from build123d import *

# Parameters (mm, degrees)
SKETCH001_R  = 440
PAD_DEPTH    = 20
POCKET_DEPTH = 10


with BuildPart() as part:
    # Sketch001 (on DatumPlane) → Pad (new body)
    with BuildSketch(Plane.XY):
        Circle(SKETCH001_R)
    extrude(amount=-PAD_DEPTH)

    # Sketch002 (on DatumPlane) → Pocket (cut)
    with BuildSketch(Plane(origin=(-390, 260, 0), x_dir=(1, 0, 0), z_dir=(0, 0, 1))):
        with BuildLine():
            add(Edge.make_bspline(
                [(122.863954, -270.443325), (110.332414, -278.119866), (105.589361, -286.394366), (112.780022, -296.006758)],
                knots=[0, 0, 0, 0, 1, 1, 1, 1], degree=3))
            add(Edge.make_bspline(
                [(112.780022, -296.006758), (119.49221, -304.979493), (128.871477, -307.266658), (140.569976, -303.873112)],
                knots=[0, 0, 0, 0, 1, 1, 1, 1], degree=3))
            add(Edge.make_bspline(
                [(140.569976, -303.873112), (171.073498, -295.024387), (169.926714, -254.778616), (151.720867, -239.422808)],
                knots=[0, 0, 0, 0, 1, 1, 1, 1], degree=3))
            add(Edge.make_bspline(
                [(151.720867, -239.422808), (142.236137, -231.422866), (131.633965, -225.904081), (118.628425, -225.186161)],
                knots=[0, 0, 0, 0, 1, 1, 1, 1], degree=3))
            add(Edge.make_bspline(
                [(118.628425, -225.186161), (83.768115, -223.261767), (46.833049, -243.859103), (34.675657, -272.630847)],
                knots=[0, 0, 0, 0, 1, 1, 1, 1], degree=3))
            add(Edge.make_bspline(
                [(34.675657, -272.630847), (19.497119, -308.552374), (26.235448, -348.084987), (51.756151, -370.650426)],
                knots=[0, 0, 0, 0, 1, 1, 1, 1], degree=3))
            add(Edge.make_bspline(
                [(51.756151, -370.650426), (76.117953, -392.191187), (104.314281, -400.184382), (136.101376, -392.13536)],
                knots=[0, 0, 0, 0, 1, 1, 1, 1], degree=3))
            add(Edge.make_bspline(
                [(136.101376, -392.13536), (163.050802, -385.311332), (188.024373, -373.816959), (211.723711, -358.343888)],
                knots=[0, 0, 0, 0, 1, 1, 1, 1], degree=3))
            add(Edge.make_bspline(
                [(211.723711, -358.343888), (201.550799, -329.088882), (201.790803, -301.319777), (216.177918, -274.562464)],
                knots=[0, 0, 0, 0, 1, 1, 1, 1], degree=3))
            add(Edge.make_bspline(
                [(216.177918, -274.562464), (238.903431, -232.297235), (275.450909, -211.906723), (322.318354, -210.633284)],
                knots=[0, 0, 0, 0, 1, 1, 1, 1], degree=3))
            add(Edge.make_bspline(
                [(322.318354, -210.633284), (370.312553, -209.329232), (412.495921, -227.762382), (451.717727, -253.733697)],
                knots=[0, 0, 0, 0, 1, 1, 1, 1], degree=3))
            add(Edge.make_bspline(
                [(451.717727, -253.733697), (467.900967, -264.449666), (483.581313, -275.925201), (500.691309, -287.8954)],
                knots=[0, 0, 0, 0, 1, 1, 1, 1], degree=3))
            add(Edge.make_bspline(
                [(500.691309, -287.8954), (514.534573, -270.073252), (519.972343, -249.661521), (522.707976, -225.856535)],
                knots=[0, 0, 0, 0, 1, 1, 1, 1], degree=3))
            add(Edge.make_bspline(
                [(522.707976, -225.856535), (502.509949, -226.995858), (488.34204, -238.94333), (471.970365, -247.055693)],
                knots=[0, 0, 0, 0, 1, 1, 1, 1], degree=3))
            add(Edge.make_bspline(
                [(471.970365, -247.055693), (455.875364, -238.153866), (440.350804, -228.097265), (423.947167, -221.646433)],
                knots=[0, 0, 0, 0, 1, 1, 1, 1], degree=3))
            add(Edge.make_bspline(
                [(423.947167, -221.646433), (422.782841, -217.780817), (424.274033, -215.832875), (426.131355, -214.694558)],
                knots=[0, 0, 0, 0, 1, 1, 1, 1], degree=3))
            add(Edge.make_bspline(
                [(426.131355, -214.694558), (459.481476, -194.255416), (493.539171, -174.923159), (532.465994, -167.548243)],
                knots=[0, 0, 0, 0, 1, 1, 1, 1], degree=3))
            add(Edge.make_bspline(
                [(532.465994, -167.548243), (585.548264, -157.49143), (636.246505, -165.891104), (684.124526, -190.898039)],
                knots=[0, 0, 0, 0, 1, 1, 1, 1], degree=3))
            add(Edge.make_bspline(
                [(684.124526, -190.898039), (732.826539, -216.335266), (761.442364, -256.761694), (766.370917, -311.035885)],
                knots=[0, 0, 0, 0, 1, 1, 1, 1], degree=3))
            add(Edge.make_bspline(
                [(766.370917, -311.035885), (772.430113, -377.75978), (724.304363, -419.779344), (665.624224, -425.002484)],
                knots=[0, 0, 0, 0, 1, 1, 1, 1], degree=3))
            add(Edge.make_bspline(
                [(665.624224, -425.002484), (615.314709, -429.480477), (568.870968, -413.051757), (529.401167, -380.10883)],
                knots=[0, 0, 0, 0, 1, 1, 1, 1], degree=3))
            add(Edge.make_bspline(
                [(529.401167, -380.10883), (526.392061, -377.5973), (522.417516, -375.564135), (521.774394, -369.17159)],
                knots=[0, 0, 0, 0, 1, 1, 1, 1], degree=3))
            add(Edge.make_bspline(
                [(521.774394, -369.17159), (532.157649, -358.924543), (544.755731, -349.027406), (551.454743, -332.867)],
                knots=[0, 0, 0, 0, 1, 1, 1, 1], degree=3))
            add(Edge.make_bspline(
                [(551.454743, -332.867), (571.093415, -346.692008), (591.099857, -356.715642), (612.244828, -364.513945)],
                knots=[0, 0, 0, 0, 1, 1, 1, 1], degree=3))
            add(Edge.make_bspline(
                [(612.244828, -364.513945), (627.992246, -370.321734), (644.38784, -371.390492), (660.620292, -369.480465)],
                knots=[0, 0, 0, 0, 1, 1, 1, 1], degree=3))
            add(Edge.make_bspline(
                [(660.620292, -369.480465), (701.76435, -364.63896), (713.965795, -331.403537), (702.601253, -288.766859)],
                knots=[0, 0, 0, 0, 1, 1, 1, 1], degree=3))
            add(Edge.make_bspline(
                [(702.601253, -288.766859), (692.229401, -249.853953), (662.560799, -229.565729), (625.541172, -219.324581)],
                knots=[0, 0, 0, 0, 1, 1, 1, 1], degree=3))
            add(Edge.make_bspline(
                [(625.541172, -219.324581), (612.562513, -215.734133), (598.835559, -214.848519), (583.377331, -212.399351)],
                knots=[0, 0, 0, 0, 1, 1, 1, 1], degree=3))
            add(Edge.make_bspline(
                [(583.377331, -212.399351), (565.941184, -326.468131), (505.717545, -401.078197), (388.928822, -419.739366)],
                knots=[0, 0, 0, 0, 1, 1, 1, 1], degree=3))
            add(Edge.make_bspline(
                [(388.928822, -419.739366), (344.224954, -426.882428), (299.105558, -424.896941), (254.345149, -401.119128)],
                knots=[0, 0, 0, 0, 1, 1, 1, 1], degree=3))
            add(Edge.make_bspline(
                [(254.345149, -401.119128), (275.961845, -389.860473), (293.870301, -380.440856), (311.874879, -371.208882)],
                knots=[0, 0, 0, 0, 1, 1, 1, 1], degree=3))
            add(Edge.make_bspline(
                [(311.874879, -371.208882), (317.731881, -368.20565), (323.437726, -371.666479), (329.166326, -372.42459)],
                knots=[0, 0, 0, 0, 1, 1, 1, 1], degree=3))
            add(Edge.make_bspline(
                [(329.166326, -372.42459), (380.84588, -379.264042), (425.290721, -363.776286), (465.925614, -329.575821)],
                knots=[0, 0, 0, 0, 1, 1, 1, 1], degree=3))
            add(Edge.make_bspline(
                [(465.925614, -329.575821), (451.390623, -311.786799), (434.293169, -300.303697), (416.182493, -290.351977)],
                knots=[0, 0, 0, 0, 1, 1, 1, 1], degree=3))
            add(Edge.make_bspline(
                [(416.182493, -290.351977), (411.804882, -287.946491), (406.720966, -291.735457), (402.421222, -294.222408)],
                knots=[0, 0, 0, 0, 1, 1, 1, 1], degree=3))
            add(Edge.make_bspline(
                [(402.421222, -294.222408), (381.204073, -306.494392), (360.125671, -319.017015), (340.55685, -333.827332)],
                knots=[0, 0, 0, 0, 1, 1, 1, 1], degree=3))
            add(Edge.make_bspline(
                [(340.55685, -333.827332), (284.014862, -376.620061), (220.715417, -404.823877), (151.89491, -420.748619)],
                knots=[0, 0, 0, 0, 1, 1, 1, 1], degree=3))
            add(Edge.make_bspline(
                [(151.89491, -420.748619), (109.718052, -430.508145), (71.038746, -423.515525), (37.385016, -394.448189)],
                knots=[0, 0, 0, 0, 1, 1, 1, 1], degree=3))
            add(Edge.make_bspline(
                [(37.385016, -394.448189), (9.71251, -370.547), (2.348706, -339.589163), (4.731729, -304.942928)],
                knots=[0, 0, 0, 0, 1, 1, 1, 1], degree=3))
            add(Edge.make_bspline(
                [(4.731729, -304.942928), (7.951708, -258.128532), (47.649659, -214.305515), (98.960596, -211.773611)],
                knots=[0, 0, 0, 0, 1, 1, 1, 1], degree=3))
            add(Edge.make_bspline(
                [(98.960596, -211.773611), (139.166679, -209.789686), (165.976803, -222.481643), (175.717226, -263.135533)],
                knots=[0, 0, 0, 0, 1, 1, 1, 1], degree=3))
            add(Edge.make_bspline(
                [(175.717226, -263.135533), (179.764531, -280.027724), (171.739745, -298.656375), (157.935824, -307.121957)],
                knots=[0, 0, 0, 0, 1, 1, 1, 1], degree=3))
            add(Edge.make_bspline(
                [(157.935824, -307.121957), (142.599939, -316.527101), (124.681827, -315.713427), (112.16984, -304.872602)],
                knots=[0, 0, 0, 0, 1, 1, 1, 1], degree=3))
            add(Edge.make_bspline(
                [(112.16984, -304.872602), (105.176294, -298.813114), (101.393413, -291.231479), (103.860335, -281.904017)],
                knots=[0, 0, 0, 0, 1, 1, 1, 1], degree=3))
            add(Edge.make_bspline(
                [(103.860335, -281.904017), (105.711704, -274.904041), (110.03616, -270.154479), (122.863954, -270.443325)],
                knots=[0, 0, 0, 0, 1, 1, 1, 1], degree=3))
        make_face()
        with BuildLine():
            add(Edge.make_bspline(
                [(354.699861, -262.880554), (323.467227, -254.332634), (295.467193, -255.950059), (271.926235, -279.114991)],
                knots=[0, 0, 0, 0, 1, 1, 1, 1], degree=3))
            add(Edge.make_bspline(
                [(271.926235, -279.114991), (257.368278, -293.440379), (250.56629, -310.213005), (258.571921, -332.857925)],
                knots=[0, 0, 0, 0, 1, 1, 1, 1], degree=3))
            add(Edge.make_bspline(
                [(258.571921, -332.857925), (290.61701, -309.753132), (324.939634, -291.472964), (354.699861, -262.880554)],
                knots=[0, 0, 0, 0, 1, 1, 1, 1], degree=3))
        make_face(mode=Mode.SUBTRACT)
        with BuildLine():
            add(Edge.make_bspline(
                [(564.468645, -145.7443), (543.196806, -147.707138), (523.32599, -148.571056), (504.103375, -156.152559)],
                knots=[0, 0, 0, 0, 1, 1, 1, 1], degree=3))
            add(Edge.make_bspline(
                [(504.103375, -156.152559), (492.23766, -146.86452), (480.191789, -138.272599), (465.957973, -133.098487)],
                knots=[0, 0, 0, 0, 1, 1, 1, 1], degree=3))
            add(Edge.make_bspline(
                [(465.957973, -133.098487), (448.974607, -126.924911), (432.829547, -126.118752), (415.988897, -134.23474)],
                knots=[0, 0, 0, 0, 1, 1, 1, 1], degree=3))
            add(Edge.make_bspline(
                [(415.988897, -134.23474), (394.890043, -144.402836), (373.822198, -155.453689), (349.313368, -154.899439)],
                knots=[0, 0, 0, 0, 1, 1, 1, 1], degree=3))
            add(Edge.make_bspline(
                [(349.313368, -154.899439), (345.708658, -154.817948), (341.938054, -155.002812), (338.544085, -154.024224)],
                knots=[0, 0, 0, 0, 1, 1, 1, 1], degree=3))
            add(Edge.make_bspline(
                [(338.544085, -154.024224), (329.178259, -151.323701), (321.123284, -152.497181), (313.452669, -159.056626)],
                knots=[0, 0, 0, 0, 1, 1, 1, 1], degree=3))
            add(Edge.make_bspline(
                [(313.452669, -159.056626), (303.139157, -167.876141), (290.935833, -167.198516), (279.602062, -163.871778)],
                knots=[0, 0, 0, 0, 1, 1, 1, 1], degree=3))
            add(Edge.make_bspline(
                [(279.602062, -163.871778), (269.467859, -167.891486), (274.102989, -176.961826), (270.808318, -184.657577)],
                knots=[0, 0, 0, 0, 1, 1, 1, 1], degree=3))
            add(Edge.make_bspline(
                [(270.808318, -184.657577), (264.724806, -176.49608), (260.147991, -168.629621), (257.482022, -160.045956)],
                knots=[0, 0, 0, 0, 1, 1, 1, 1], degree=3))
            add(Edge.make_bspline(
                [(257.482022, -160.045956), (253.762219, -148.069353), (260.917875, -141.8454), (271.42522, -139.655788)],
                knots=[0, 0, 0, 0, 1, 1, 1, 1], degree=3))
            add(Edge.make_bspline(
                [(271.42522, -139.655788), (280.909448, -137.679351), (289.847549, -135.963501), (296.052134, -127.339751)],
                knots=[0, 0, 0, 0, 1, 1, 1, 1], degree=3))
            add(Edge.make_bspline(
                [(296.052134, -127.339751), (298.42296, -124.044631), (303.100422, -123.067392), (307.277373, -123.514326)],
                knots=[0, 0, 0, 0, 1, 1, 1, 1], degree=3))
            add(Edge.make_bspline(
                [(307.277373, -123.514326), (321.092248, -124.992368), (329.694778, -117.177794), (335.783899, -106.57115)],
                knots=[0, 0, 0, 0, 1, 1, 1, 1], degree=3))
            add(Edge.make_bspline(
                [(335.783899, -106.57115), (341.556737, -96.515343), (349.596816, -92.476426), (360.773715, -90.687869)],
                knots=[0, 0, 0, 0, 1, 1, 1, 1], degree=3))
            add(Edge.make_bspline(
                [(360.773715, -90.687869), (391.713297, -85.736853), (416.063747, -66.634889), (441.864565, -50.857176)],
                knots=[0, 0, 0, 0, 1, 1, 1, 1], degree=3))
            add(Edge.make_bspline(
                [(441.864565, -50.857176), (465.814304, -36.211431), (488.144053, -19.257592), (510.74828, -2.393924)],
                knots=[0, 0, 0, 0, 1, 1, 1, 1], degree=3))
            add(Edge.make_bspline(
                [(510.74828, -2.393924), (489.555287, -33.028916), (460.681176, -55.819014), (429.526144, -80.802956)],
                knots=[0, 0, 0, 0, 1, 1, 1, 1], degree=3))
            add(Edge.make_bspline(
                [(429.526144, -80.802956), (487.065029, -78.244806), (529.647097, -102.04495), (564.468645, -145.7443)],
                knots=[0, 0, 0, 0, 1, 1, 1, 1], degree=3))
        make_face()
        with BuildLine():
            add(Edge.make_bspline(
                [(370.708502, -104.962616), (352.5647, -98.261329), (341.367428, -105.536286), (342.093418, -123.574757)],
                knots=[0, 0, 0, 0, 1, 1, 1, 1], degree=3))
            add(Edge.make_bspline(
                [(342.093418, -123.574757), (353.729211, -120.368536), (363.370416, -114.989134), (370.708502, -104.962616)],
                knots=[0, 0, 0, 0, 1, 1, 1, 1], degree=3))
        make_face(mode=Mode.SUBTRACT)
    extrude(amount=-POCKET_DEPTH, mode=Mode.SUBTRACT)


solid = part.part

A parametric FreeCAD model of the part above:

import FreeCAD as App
import Part
import Sketcher
Q = App.Units.Quantity

doc = App.newDocument("Part")
body = doc.addObject("PartDesign::Body", "Body")

sketch1 = body.newObject("Sketcher::SketchObject", "Sketch")
sketch1.AttachmentSupport = (doc.getObject("XY_Plane"), [""])
sketch1.MapMode = "FlatFace"
sketch1.addGeometry(Part.Circle(App.Vector(0, 0, 0), App.Vector(0, 0, 1), 440), False)
sketch1.addConstraint([
    Sketcher.Constraint("Coincident", 0, 3, -1, 1),
    Sketcher.Constraint("Diameter", 0, Q("880 mm")),
])
pad1 = body.newObject("PartDesign::Pad", "Pad")
pad1.Profile = sketch1
pad1.Length = 20
pad1.Reversed = True

sketch2 = body.newObject("Sketcher::SketchObject", "Sketch001")
sketch2.AttachmentSupport = (doc.getObject("XY_Plane"), [""])
sketch2.MapMode = "FlatFace"
sketch2.addGeometry([
    Part.BSplineCurve([App.Vector(-267.136046, -10.443325, 0), App.Vector(-279.667586, -18.119866, 0), App.Vector(-284.410639, -26.394366, 0), App.Vector(-277.219978, -36.006758, 0)], [4, 4], [0, 1], False, 3, [1, 1, 1, 1], False),
    Part.BSplineCurve([App.Vector(-286.139665, -21.904017, 0), App.Vector(-284.288296, -14.904041, 0), App.Vector(-279.96384, -10.154479, 0), App.Vector(-267.136046, -10.443325, 0)], [4, 4], [0, 1], False, 3, [1, 1, 1, 1], False),
    Part.BSplineCurve([App.Vector(-277.83016, -44.872602, 0), App.Vector(-284.823706, -38.813114, 0), App.Vector(-288.606587, -31.231479, 0), App.Vector(-286.139665, -21.904017, 0)], [4, 4], [0, 1], False, 3, [1, 1, 1, 1], False),
    Part.BSplineCurve([App.Vector(-232.064176, -47.121957, 0), App.Vector(-247.400061, -56.527101, 0), App.Vector(-265.318173, -55.713427, 0), App.Vector(-277.83016, -44.872602, 0)], [4, 4], [0, 1], False, 3, [1, 1, 1, 1], False),
    Part.BSplineCurve([App.Vector(-214.282774, -3.135533, 0), App.Vector(-210.235469, -20.027724, 0), App.Vector(-218.260255, -38.656375, 0), App.Vector(-232.064176, -47.121957, 0)], [4, 4], [0, 1], False, 3, [1, 1, 1, 1], False),
    Part.BSplineCurve([App.Vector(-291.039404, 48.226389, 0), App.Vector(-250.833321, 50.210314, 0), App.Vector(-224.023197, 37.518357, 0), App.Vector(-214.282774, -3.135533, 0)], [4, 4], [0, 1], False, 3, [1, 1, 1, 1], False),
    Part.BSplineCurve([App.Vector(-385.268271, -44.942928, 0), App.Vector(-382.048292, 1.871468, 0), App.Vector(-342.350341, 45.694485, 0), App.Vector(-291.039404, 48.226389, 0)], [4, 4], [0, 1], False, 3, [1, 1, 1, 1], False),
    Part.BSplineCurve([App.Vector(-352.614984, -134.448189, 0), App.Vector(-380.28749, -110.547, 0), App.Vector(-387.651294, -79.589163, 0), App.Vector(-385.268271, -44.942928, 0)], [4, 4], [0, 1], False, 3, [1, 1, 1, 1], False),
    Part.BSplineCurve([App.Vector(-238.10509, -160.748619, 0), App.Vector(-280.281948, -170.508145, 0), App.Vector(-318.961254, -163.515525, 0), App.Vector(-352.614984, -134.448189, 0)], [4, 4], [0, 1], False, 3, [1, 1, 1, 1], False),
    Part.BSplineCurve([App.Vector(-49.44315, -73.827332, 0), App.Vector(-105.985138, -116.620061, 0), App.Vector(-169.284583, -144.823877, 0), App.Vector(-238.10509, -160.748619, 0)], [4, 4], [0, 1], False, 3, [1, 1, 1, 1], False),
    Part.BSplineCurve([App.Vector(12.421222, -34.222408, 0), App.Vector(-8.795927, -46.494392, 0), App.Vector(-29.874329, -59.017015, 0), App.Vector(-49.44315, -73.827332, 0)], [4, 4], [0, 1], False, 3, [1, 1, 1, 1], False),
    Part.BSplineCurve([App.Vector(26.182493, -30.351977, 0), App.Vector(21.804882, -27.946491, 0), App.Vector(16.720966, -31.735457, 0), App.Vector(12.421222, -34.222408, 0)], [4, 4], [0, 1], False, 3, [1, 1, 1, 1], False),
    Part.BSplineCurve([App.Vector(75.925614, -69.575821, 0), App.Vector(61.390623, -51.786799, 0), App.Vector(44.293169, -40.303697, 0), App.Vector(26.182493, -30.351977, 0)], [4, 4], [0, 1], False, 3, [1, 1, 1, 1], False),
    Part.BSplineCurve([App.Vector(-60.833674, -112.42459, 0), App.Vector(-9.15412, -119.264042, 0), App.Vector(35.290721, -103.776286, 0), App.Vector(75.925614, -69.575821, 0)], [4, 4], [0, 1], False, 3, [1, 1, 1, 1], False),
    Part.BSplineCurve([App.Vector(-78.125121, -111.208882, 0), App.Vector(-72.268119, -108.20565, 0), App.Vector(-66.562274, -111.666479, 0), App.Vector(-60.833674, -112.42459, 0)], [4, 4], [0, 1], False, 3, [1, 1, 1, 1], False),
    Part.BSplineCurve([App.Vector(-135.654851, -141.119128, 0), App.Vector(-114.038155, -129.860473, 0), App.Vector(-96.129699, -120.440856, 0), App.Vector(-78.125121, -111.208882, 0)], [4, 4], [0, 1], False, 3, [1, 1, 1, 1], False),
    Part.BSplineCurve([App.Vector(-1.071178, -159.739366, 0), App.Vector(-45.775046, -166.882428, 0), App.Vector(-90.894442, -164.896941, 0), App.Vector(-135.654851, -141.119128, 0)], [4, 4], [0, 1], False, 3, [1, 1, 1, 1], False),
    Part.BSplineCurve([App.Vector(193.377331, 47.600649, 0), App.Vector(175.941184, -66.468131, 0), App.Vector(115.717545, -141.078197, 0), App.Vector(-1.071178, -159.739366, 0)], [4, 4], [0, 1], False, 3, [1, 1, 1, 1], False),
    Part.BSplineCurve([App.Vector(235.541172, 40.675419, 0), App.Vector(222.562513, 44.265867, 0), App.Vector(208.835559, 45.151481, 0), App.Vector(193.377331, 47.600649, 0)], [4, 4], [0, 1], False, 3, [1, 1, 1, 1], False),
    Part.BSplineCurve([App.Vector(312.601253, -28.766859, 0), App.Vector(302.229401, 10.146047, 0), App.Vector(272.560799, 30.434271, 0), App.Vector(235.541172, 40.675419, 0)], [4, 4], [0, 1], False, 3, [1, 1, 1, 1], False),
    Part.BSplineCurve([App.Vector(270.620292, -109.480465, 0), App.Vector(311.76435, -104.63896, 0), App.Vector(323.965795, -71.403537, 0), App.Vector(312.601253, -28.766859, 0)], [4, 4], [0, 1], False, 3, [1, 1, 1, 1], False),
    Part.BSplineCurve([App.Vector(222.244828, -104.513945, 0), App.Vector(237.992246, -110.321734, 0), App.Vector(254.38784, -111.390492, 0), App.Vector(270.620292, -109.480465, 0)], [4, 4], [0, 1], False, 3, [1, 1, 1, 1], False),
    Part.BSplineCurve([App.Vector(161.454743, -72.867, 0), App.Vector(181.093415, -86.692008, 0), App.Vector(201.099857, -96.715642, 0), App.Vector(222.244828, -104.513945, 0)], [4, 4], [0, 1], False, 3, [1, 1, 1, 1], False),
    Part.BSplineCurve([App.Vector(131.774394, -109.17159, 0), App.Vector(142.157649, -98.924543, 0), App.Vector(154.755731, -89.027406, 0), App.Vector(161.454743, -72.867, 0)], [4, 4], [0, 1], False, 3, [1, 1, 1, 1], False),
    Part.BSplineCurve([App.Vector(139.401167, -120.10883, 0), App.Vector(136.392061, -117.5973, 0), App.Vector(132.417516, -115.564135, 0), App.Vector(131.774394, -109.17159, 0)], [4, 4], [0, 1], False, 3, [1, 1, 1, 1], False),
    Part.BSplineCurve([App.Vector(275.624224, -165.002484, 0), App.Vector(225.314709, -169.480477, 0), App.Vector(178.870968, -153.051757, 0), App.Vector(139.401167, -120.10883, 0)], [4, 4], [0, 1], False, 3, [1, 1, 1, 1], False),
    Part.BSplineCurve([App.Vector(376.370917, -51.035885, 0), App.Vector(382.430113, -117.75978, 0), App.Vector(334.304363, -159.779344, 0), App.Vector(275.624224, -165.002484, 0)], [4, 4], [0, 1], False, 3, [1, 1, 1, 1], False),
    Part.BSplineCurve([App.Vector(294.124526, 69.101961, 0), App.Vector(342.826539, 43.664734, 0), App.Vector(371.442364, 3.238306, 0), App.Vector(376.370917, -51.035885, 0)], [4, 4], [0, 1], False, 3, [1, 1, 1, 1], False),
    Part.BSplineCurve([App.Vector(142.465994, 92.451757, 0), App.Vector(195.548264, 102.50857, 0), App.Vector(246.246505, 94.108896, 0), App.Vector(294.124526, 69.101961, 0)], [4, 4], [0, 1], False, 3, [1, 1, 1, 1], False),
    Part.BSplineCurve([App.Vector(36.131355, 45.305442, 0), App.Vector(69.481476, 65.744584, 0), App.Vector(103.539171, 85.076841, 0), App.Vector(142.465994, 92.451757, 0)], [4, 4], [0, 1], False, 3, [1, 1, 1, 1], False),
    Part.BSplineCurve([App.Vector(33.947167, 38.353567, 0), App.Vector(32.782841, 42.219183, 0), App.Vector(34.274033, 44.167125, 0), App.Vector(36.131355, 45.305442, 0)], [4, 4], [0, 1], False, 3, [1, 1, 1, 1], False),
    Part.BSplineCurve([App.Vector(81.970365, 12.944307, 0), App.Vector(65.875364, 21.846134, 0), App.Vector(50.350804, 31.902735, 0), App.Vector(33.947167, 38.353567, 0)], [4, 4], [0, 1], False, 3, [1, 1, 1, 1], False),
    Part.BSplineCurve([App.Vector(132.707976, 34.143465, 0), App.Vector(112.509949, 33.004142, 0), App.Vector(98.34204, 21.05667, 0), App.Vector(81.970365, 12.944307, 0)], [4, 4], [0, 1], False, 3, [1, 1, 1, 1], False),
    Part.BSplineCurve([App.Vector(110.691309, -27.8954, 0), App.Vector(124.534573, -10.073252, 0), App.Vector(129.972343, 10.338479, 0), App.Vector(132.707976, 34.143465, 0)], [4, 4], [0, 1], False, 3, [1, 1, 1, 1], False),
    Part.BSplineCurve([App.Vector(61.717727, 6.266303, 0), App.Vector(77.900967, -4.449666, 0), App.Vector(93.581313, -15.925201, 0), App.Vector(110.691309, -27.8954, 0)], [4, 4], [0, 1], False, 3, [1, 1, 1, 1], False),
    Part.BSplineCurve([App.Vector(-67.681646, 49.366716, 0), App.Vector(-19.687447, 50.670768, 0), App.Vector(22.495921, 32.237618, 0), App.Vector(61.717727, 6.266303, 0)], [4, 4], [0, 1], False, 3, [1, 1, 1, 1], False),
    Part.BSplineCurve([App.Vector(-173.822082, -14.562464, 0), App.Vector(-151.096569, 27.702765, 0), App.Vector(-114.549091, 48.093277, 0), App.Vector(-67.681646, 49.366716, 0)], [4, 4], [0, 1], False, 3, [1, 1, 1, 1], False),
    Part.BSplineCurve([App.Vector(-178.276289, -98.343888, 0), App.Vector(-188.449201, -69.088882, 0), App.Vector(-188.209197, -41.319777, 0), App.Vector(-173.822082, -14.562464, 0)], [4, 4], [0, 1], False, 3, [1, 1, 1, 1], False),
    Part.BSplineCurve([App.Vector(-253.898624, -132.13536, 0), App.Vector(-226.949198, -125.311332, 0), App.Vector(-201.975627, -113.816959, 0), App.Vector(-178.276289, -98.343888, 0)], [4, 4], [0, 1], False, 3, [1, 1, 1, 1], False),
    Part.BSplineCurve([App.Vector(-338.243849, -110.650426, 0), App.Vector(-313.882047, -132.191187, 0), App.Vector(-285.685719, -140.184382, 0), App.Vector(-253.898624, -132.13536, 0)], [4, 4], [0, 1], False, 3, [1, 1, 1, 1], False),
    Part.BSplineCurve([App.Vector(-355.324343, -12.630847, 0), App.Vector(-370.502881, -48.552374, 0), App.Vector(-363.764552, -88.084987, 0), App.Vector(-338.243849, -110.650426, 0)], [4, 4], [0, 1], False, 3, [1, 1, 1, 1], False),
    Part.BSplineCurve([App.Vector(-271.371575, 34.813839, 0), App.Vector(-306.231885, 36.738233, 0), App.Vector(-343.166951, 16.140897, 0), App.Vector(-355.324343, -12.630847, 0)], [4, 4], [0, 1], False, 3, [1, 1, 1, 1], False),
    Part.BSplineCurve([App.Vector(-238.279133, 20.577192, 0), App.Vector(-247.763863, 28.577134, 0), App.Vector(-258.366035, 34.095919, 0), App.Vector(-271.371575, 34.813839, 0)], [4, 4], [0, 1], False, 3, [1, 1, 1, 1], False),
    Part.BSplineCurve([App.Vector(-249.430024, -43.873112, 0), App.Vector(-218.926502, -35.024387, 0), App.Vector(-220.073286, 5.221384, 0), App.Vector(-238.279133, 20.577192, 0)], [4, 4], [0, 1], False, 3, [1, 1, 1, 1], False),
    Part.BSplineCurve([App.Vector(-277.219978, -36.006758, 0), App.Vector(-270.50779, -44.979493, 0), App.Vector(-261.128523, -47.266658, 0), App.Vector(-249.430024, -43.873112, 0)], [4, 4], [0, 1], False, 3, [1, 1, 1, 1], False),
    Part.BSplineCurve([App.Vector(-131.428079, -72.857925, 0), App.Vector(-99.38299, -49.753132, 0), App.Vector(-65.060366, -31.472964, 0), App.Vector(-35.300139, -2.880554, 0)], [4, 4], [0, 1], False, 3, [1, 1, 1, 1], False),
    Part.BSplineCurve([App.Vector(-118.073765, -19.114991, 0), App.Vector(-132.631722, -33.440379, 0), App.Vector(-139.43371, -50.213005, 0), App.Vector(-131.428079, -72.857925, 0)], [4, 4], [0, 1], False, 3, [1, 1, 1, 1], False),
    Part.BSplineCurve([App.Vector(-35.300139, -2.880554, 0), App.Vector(-66.532773, 5.667366, 0), App.Vector(-94.532807, 4.049941, 0), App.Vector(-118.073765, -19.114991, 0)], [4, 4], [0, 1], False, 3, [1, 1, 1, 1], False),
    Part.BSplineCurve([App.Vector(174.468645, 114.2557, 0), App.Vector(153.196806, 112.292862, 0), App.Vector(133.32599, 111.428944, 0), App.Vector(114.103375, 103.847441, 0)], [4, 4], [0, 1], False, 3, [1, 1, 1, 1], False),
    Part.BSplineCurve([App.Vector(39.526144, 179.197044, 0), App.Vector(97.065029, 181.755194, 0), App.Vector(139.647097, 157.95505, 0), App.Vector(174.468645, 114.2557, 0)], [4, 4], [0, 1], False, 3, [1, 1, 1, 1], False),
    Part.BSplineCurve([App.Vector(120.74828, 257.606076, 0), App.Vector(99.555287, 226.971084, 0), App.Vector(70.681176, 204.180986, 0), App.Vector(39.526144, 179.197044, 0)], [4, 4], [0, 1], False, 3, [1, 1, 1, 1], False),
    Part.BSplineCurve([App.Vector(51.864565, 209.142824, 0), App.Vector(75.814304, 223.788569, 0), App.Vector(98.144053, 240.742408, 0), App.Vector(120.74828, 257.606076, 0)], [4, 4], [0, 1], False, 3, [1, 1, 1, 1], False),
    Part.BSplineCurve([App.Vector(-29.226285, 169.312131, 0), App.Vector(1.713297, 174.263147, 0), App.Vector(26.063747, 193.365111, 0), App.Vector(51.864565, 209.142824, 0)], [4, 4], [0, 1], False, 3, [1, 1, 1, 1], False),
    Part.BSplineCurve([App.Vector(-54.216101, 153.42885, 0), App.Vector(-48.443263, 163.484657, 0), App.Vector(-40.403184, 167.523574, 0), App.Vector(-29.226285, 169.312131, 0)], [4, 4], [0, 1], False, 3, [1, 1, 1, 1], False),
    Part.BSplineCurve([App.Vector(-82.722627, 136.485674, 0), App.Vector(-68.907752, 135.007632, 0), App.Vector(-60.305222, 142.822206, 0), App.Vector(-54.216101, 153.42885, 0)], [4, 4], [0, 1], False, 3, [1, 1, 1, 1], False),
    Part.BSplineCurve([App.Vector(-93.947866, 132.660249, 0), App.Vector(-91.57704, 135.955369, 0), App.Vector(-86.899578, 136.932608, 0), App.Vector(-82.722627, 136.485674, 0)], [4, 4], [0, 1], False, 3, [1, 1, 1, 1], False),
    Part.BSplineCurve([App.Vector(-118.57478, 120.344212, 0), App.Vector(-109.090552, 122.320649, 0), App.Vector(-100.152451, 124.036499, 0), App.Vector(-93.947866, 132.660249, 0)], [4, 4], [0, 1], False, 3, [1, 1, 1, 1], False),
    Part.BSplineCurve([App.Vector(-132.517978, 99.954044, 0), App.Vector(-136.237781, 111.930647, 0), App.Vector(-129.082125, 118.1546, 0), App.Vector(-118.57478, 120.344212, 0)], [4, 4], [0, 1], False, 3, [1, 1, 1, 1], False),
    Part.BSplineCurve([App.Vector(-119.191682, 75.342423, 0), App.Vector(-125.275194, 83.50392, 0), App.Vector(-129.852009, 91.370379, 0), App.Vector(-132.517978, 99.954044, 0)], [4, 4], [0, 1], False, 3, [1, 1, 1, 1], False),
    Part.BSplineCurve([App.Vector(-110.397938, 96.128222, 0), App.Vector(-120.532141, 92.108514, 0), App.Vector(-115.897011, 83.038174, 0), App.Vector(-119.191682, 75.342423, 0)], [4, 4], [0, 1], False, 3, [1, 1, 1, 1], False),
    Part.BSplineCurve([App.Vector(-76.547331, 100.943374, 0), App.Vector(-86.860843, 92.123859, 0), App.Vector(-99.064167, 92.801484, 0), App.Vector(-110.397938, 96.128222, 0)], [4, 4], [0, 1], False, 3, [1, 1, 1, 1], False),
    Part.BSplineCurve([App.Vector(-51.455915, 105.975776, 0), App.Vector(-60.821741, 108.676299, 0), App.Vector(-68.876716, 107.502819, 0), App.Vector(-76.547331, 100.943374, 0)], [4, 4], [0, 1], False, 3, [1, 1, 1, 1], False),
    Part.BSplineCurve([App.Vector(-40.686632, 105.100561, 0), App.Vector(-44.291342, 105.182052, 0), App.Vector(-48.061946, 104.997188, 0), App.Vector(-51.455915, 105.975776, 0)], [4, 4], [0, 1], False, 3, [1, 1, 1, 1], False),
    Part.BSplineCurve([App.Vector(25.988897, 125.76526, 0), App.Vector(4.890043, 115.597164, 0), App.Vector(-16.177802, 104.546311, 0), App.Vector(-40.686632, 105.100561, 0)], [4, 4], [0, 1], False, 3, [1, 1, 1, 1], False),
    Part.BSplineCurve([App.Vector(75.957973, 126.901513, 0), App.Vector(58.974607, 133.075089, 0), App.Vector(42.829547, 133.881248, 0), App.Vector(25.988897, 125.76526, 0)], [4, 4], [0, 1], False, 3, [1, 1, 1, 1], False),
    Part.BSplineCurve([App.Vector(114.103375, 103.847441, 0), App.Vector(102.23766, 113.13548, 0), App.Vector(90.191789, 121.727401, 0), App.Vector(75.957973, 126.901513, 0)], [4, 4], [0, 1], False, 3, [1, 1, 1, 1], False),
    Part.BSplineCurve([App.Vector(-47.906582, 136.425243, 0), App.Vector(-36.270789, 139.631464, 0), App.Vector(-26.629584, 145.010866, 0), App.Vector(-19.291498, 155.037384, 0)], [4, 4], [0, 1], False, 3, [1, 1, 1, 1], False),
    Part.BSplineCurve([App.Vector(-19.291498, 155.037384, 0), App.Vector(-37.4353, 161.738671, 0), App.Vector(-48.632572, 154.463714, 0), App.Vector(-47.906582, 136.425243, 0)], [4, 4], [0, 1], False, 3, [1, 1, 1, 1], False),
], False)
sketch2.addConstraint([
    Sketcher.Constraint("Block", 0),
    Sketcher.Constraint("Block", 1),
    Sketcher.Constraint("Block", 2),
    Sketcher.Constraint("Block", 3),
    Sketcher.Constraint("Block", 4),
    Sketcher.Constraint("Block", 5),
    Sketcher.Constraint("Block", 6),
    Sketcher.Constraint("Block", 7),
    Sketcher.Constraint("Block", 8),
    Sketcher.Constraint("Block", 9),
    Sketcher.Constraint("Block", 10),
    Sketcher.Constraint("Block", 11),
    Sketcher.Constraint("Block", 12),
    Sketcher.Constraint("Block", 13),
    Sketcher.Constraint("Block", 14),
    Sketcher.Constraint("Block", 15),
    Sketcher.Constraint("Block", 16),
    Sketcher.Constraint("Block", 17),
    Sketcher.Constraint("Block", 18),
    Sketcher.Constraint("Block", 19),
    Sketcher.Constraint("Block", 20),
    Sketcher.Constraint("Block", 21),
    Sketcher.Constraint("Block", 22),
    Sketcher.Constraint("Block", 23),
    Sketcher.Constraint("Block", 24),
    Sketcher.Constraint("Block", 25),
    Sketcher.Constraint("Block", 26),
    Sketcher.Constraint("Block", 27),
    Sketcher.Constraint("Block", 28),
    Sketcher.Constraint("Block", 29),
    Sketcher.Constraint("Block", 30),
    Sketcher.Constraint("Block", 31),
    Sketcher.Constraint("Block", 32),
    Sketcher.Constraint("Block", 33),
    Sketcher.Constraint("Block", 34),
    Sketcher.Constraint("Block", 35),
    Sketcher.Constraint("Block", 36),
    Sketcher.Constraint("Block", 37),
    Sketcher.Constraint("Block", 38),
    Sketcher.Constraint("Block", 39),
    Sketcher.Constraint("Block", 40),
    Sketcher.Constraint("Block", 41),
    Sketcher.Constraint("Block", 42),
    Sketcher.Constraint("Block", 43),
    Sketcher.Constraint("Block", 44),
    Sketcher.Constraint("Block", 45),
    Sketcher.Constraint("Block", 46),
    Sketcher.Constraint("Block", 47),
    Sketcher.Constraint("Block", 48),
    Sketcher.Constraint("Block", 49),
    Sketcher.Constraint("Block", 50),
    Sketcher.Constraint("Block", 51),
    Sketcher.Constraint("Block", 52),
    Sketcher.Constraint("Block", 53),
    Sketcher.Constraint("Block", 54),
    Sketcher.Constraint("Block", 55),
    Sketcher.Constraint("Block", 56),
    Sketcher.Constraint("Block", 57),
    Sketcher.Constraint("Block", 58),
    Sketcher.Constraint("Block", 59),
    Sketcher.Constraint("Block", 60),
    Sketcher.Constraint("Block", 61),
    Sketcher.Constraint("Block", 62),
    Sketcher.Constraint("Block", 63),
    Sketcher.Constraint("Block", 64),
    Sketcher.Constraint("Block", 65),
    Sketcher.Constraint("Block", 66),
    Sketcher.Constraint("Block", 67),
])
pocket1 = body.newObject("PartDesign::Pocket", "Pocket")
pocket1.Profile = sketch2
pocket1.Length = 10

doc.recompute()
